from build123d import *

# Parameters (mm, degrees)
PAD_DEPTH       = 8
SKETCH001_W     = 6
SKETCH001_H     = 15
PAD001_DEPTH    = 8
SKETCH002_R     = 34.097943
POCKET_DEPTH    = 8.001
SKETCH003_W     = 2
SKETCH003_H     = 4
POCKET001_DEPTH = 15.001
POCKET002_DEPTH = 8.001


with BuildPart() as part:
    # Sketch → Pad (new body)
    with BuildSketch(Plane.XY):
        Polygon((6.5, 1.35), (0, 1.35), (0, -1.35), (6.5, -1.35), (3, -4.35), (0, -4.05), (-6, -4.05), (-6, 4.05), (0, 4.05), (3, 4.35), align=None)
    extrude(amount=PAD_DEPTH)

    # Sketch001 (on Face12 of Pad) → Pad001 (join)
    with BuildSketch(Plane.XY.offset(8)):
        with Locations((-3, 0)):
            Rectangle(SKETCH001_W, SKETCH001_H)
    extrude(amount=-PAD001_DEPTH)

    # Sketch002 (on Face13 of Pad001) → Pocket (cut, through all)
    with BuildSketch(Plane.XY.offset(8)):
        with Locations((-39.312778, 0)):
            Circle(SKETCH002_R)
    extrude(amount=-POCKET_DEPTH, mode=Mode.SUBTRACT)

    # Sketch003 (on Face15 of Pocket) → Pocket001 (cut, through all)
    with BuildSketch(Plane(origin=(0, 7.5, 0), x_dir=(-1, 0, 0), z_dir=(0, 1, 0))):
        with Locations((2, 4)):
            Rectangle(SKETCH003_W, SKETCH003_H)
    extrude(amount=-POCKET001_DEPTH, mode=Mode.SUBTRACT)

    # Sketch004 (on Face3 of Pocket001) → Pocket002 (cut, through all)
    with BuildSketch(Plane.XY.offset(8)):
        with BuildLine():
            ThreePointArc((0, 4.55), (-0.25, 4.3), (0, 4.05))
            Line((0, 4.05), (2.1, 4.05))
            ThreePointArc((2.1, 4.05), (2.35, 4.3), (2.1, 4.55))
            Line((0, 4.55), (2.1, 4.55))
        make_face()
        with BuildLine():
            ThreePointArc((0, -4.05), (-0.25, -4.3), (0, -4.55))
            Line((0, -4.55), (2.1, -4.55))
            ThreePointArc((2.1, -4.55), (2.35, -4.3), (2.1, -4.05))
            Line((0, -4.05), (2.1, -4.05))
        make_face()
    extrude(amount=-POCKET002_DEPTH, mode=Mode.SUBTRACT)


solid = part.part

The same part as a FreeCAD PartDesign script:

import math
import FreeCAD as App
import Part
import Sketcher
from FreeCAD import Vector

doc = App.newDocument("Part")
body = doc.addObject("PartDesign::Body", "Body")

# Sketch on XY plane
sketch1 = doc.addObject("Sketcher::SketchObject", "Sketch")
body.addObject(sketch1)
sketch1.AttachmentSupport = (doc.XY_Plane, [""])
sketch1.MapMode = "FlatFace"
sketch1.addGeometry(Part.LineSegment(Vector(0, 1.35, 0), Vector(6.5, 1.35, 0)), False)
sketch1.addGeometry(Part.LineSegment(Vector(6.5, 1.35, 0), Vector(3, 4.35, 0)), False)
sketch1.addGeometry(Part.LineSegment(Vector(3, 4.35, 0), Vector(0, 4.05, 0)), False)
sketch1.addGeometry(Part.LineSegment(Vector(0, 4.05, 0), Vector(-6, 4.05, 0)), False)
sketch1.addGeometry(Part.LineSegment(Vector(-6, 4.05, 0), Vector(-6, -4.05, 0)), False)
sketch1.addGeometry(Part.LineSegment(Vector(-6, -4.05, 0), Vector(0, -4.05, 0)), False)
sketch1.addGeometry(Part.LineSegment(Vector(0, -4.05, 0), Vector(3, -4.35, 0)), False)
sketch1.addGeometry(Part.LineSegment(Vector(3, -4.35, 0), Vector(6.5, -1.35, 0)), False)
sketch1.addGeometry(Part.LineSegment(Vector(6.5, -1.35, 0), Vector(0, -1.35, 0)), False)
sketch1.addGeometry(Part.LineSegment(Vector(0, -1.35, 0), Vector(0, 1.35, 0)), False)
sketch1.addConstraint(Sketcher.Constraint("Coincident", 0, 2, 1, 1))
sketch1.addConstraint(Sketcher.Constraint("Coincident", 1, 2, 2, 1))
sketch1.addConstraint(Sketcher.Constraint("Coincident", 2, 2, 3, 1))
sketch1.addConstraint(Sketcher.Constraint("Coincident", 3, 2, 4, 1))
sketch1.addConstraint(Sketcher.Constraint("Coincident", 4, 2, 5, 1))
sketch1.addConstraint(Sketcher.Constraint("Coincident", 5, 2, 6, 1))
sketch1.addConstraint(Sketcher.Constraint("Coincident", 6, 2, 7, 1))
sketch1.addConstraint(Sketcher.Constraint("Coincident", 7, 2, 8, 1))
sketch1.addConstraint(Sketcher.Constraint("Coincident", 8, 2, 9, 1))
sketch1.addConstraint(Sketcher.Constraint("Coincident", 9, 2, 0, 1))
sketch1.addConstraint(Sketcher.Constraint("Horizontal", 0))
sketch1.addConstraint(Sketcher.Constraint("Horizontal", 3))
sketch1.addConstraint(Sketcher.Constraint("Vertical", 4))
sketch1.addConstraint(Sketcher.Constraint("Horizontal", 5))
sketch1.addConstraint(Sketcher.Constraint("Horizontal", 8))
sketch1.addConstraint(Sketcher.Constraint("Vertical", 9))
sketch1.addConstraint(Sketcher.Constraint("Symmetric", 2, 2, 5, 2, -1, 1))
sketch1.addConstraint(Sketcher.Constraint("Symmetric", 8, 2, 9, 2, -1, 1))
sketch1.addConstraint(Sketcher.Constraint("Symmetric", 1, 2, 6, 2, -1))
sketch1.addConstraint(Sketcher.Constraint("PointOnObject", 2, 2, -2))
sketch1.addConstraint(Sketcher.Constraint("Vertical", 0, 2, 7, 2))
sketch1.addConstraint(Sketcher.Constraint("DistanceX", 3, 2, 3, 1, 6.0))
sketch1.addConstraint(Sketcher.Constraint("DistanceX", 0, 1, 0, 2, 6.5))
sketch1.addConstraint(Sketcher.Constraint("DistanceY", 4, 2, 4, 1, 8.1))
sketch1.addConstraint(Sketcher.Constraint("DistanceY", 9, 1, 9, 2, 2.7))
sketch1.addConstraint(Sketcher.Constraint("DistanceX", -1, 1, 1, 2, 3.0))
sketch1.addConstraint(Sketcher.Constraint("DistanceY", 0, 2, 1, 2, 3.0))
pad1 = doc.addObject("PartDesign::Pad", "Pad")
body.addObject(pad1)
pad1.Profile = sketch1
pad1.Length = 8

# Sketch on XY plane
sketch2 = doc.addObject("Sketcher::SketchObject", "Sketch001")
body.addObject(sketch2)
sketch2.AttachmentSupport = (doc.XY_Plane, [""])
sketch2.MapMode = "FlatFace"
sketch2.AttachmentOffset = App.Placement(Vector(0, 0, 8), App.Rotation())
sketch2.addGeometry(Part.LineSegment(Vector(-6, 7.5, 0), Vector(-6, -7.5, 0)), False)
sketch2.addGeometry(Part.LineSegment(Vector(-6, -7.5, 0), Vector(0, -7.5, 0)), False)
sketch2.addGeometry(Part.LineSegment(Vector(0, -7.5, 0), Vector(0, 7.5, 0)), False)
sketch2.addGeometry(Part.LineSegment(Vector(0, 7.5, 0), Vector(-6, 7.5, 0)), False)
sketch2.addConstraint(Sketcher.Constraint("Coincident", 0, 2, 1, 1))
sketch2.addConstraint(Sketcher.Constraint("Coincident", 1, 2, 2, 1))
sketch2.addConstraint(Sketcher.Constraint("Coincident", 2, 2, 3, 1))
sketch2.addConstraint(Sketcher.Constraint("Coincident", 3, 2, 0, 1))
sketch2.addConstraint(Sketcher.Constraint("Vertical", 0))
sketch2.addConstraint(Sketcher.Constraint("Horizontal", 1))
sketch2.addConstraint(Sketcher.Constraint("Vertical", 2))
sketch2.addConstraint(Sketcher.Constraint("Horizontal", 3))
sketch2.addConstraint(Sketcher.Constraint("Symmetric", 1, 2, 2, 2, -1, 1))
sketch2.addConstraint(Sketcher.Constraint("DistanceX", 1, 1, 1, 2, 6.0))
sketch2.addConstraint(Sketcher.Constraint("DistanceY", 0, 2, 0, 1, 15.0))
pad2 = doc.addObject("PartDesign::Pad", "Pad001")
body.addObject(pad2)
pad2.Profile = sketch2
pad2.Length = 8
pad2.Reversed = True

# Sketch on XY plane
sketch3 = doc.addObject("Sketcher::SketchObject", "Sketch002")
body.addObject(sketch3)
sketch3.AttachmentSupport = (doc.XY_Plane, [""])
sketch3.MapMode = "FlatFace"
sketch3.AttachmentOffset = App.Placement(Vector(0, 0, 8), App.Rotation())
sketch3.addGeometry(Part.Circle(Vector(-39.312778, 0, 0), Vector(0, 0, 1), 34.097943), False)
sketch3.addConstraint(Sketcher.Constraint("PointOnObject", 0, 3, -1))
sketch3.addConstraint(Sketcher.Constraint("Diameter", 0, 68.195886))
sketch3.addConstraint(Sketcher.Constraint("DistanceX", 0, 3, -1, 1, 39.312778))
pocket1 = doc.addObject("PartDesign::Pocket", "Pocket")
body.addObject(pocket1)
pocket1.Profile = sketch3
pocket1.Type = "ThroughAll"

# Sketch on XZ plane
sketch4 = doc.addObject("Sketcher::SketchObject", "Sketch003")
body.addObject(sketch4)
sketch4.AttachmentSupport = (doc.XZ_Plane, [""])
sketch4.MapMode = "FlatFace"
sketch4.AttachmentOffset = App.Placement(Vector(0, 0, -7.5), App.Rotation())
sketch4.addGeometry(Part.LineSegment(Vector(-1, 6, 0), Vector(-1, 2, 0)), False)
sketch4.addGeometry(Part.LineSegment(Vector(-1, 2, 0), Vector(-3, 2, 0)), False)
sketch4.addGeometry(Part.LineSegment(Vector(-3, 2, 0), Vector(-3, 6, 0)), False)
sketch4.addGeometry(Part.LineSegment(Vector(-3, 6, 0), Vector(-1, 6, 0)), False)
sketch4.addConstraint(Sketcher.Constraint("Coincident", 0, 2, 1, 1))
sketch4.addConstraint(Sketcher.Constraint("Coincident", 1, 2, 2, 1))
sketch4.addConstraint(Sketcher.Constraint("Coincident", 2, 2, 3, 1))
sketch4.addConstraint(Sketcher.Constraint("Coincident", 3, 2, 0, 1))
sketch4.addConstraint(Sketcher.Constraint("Vertical", 0))
sketch4.addConstraint(Sketcher.Constraint("Horizontal", 1))
sketch4.addConstraint(Sketcher.Constraint("Vertical", 2))
sketch4.addConstraint(Sketcher.Constraint("Horizontal", 3))
sketch4.addConstraint(Sketcher.Constraint("DistanceX", 1, 2, 1, 1, 2.0))
sketch4.addConstraint(Sketcher.Constraint("DistanceY", 0, 2, 0, 1, 4.0))
sketch4.addConstraint(Sketcher.Constraint("DistanceX", 0, 2, -1, 1, 1.0))
sketch4.addConstraint(Sketcher.Constraint("DistanceY", -1, 1, 0, 2, 2.0))
pocket2 = doc.addObject("PartDesign::Pocket", "Pocket001")
body.addObject(pocket2)
pocket2.Profile = sketch4
pocket2.Type = "ThroughAll"
pocket2.Reversed = True

# Sketch on XY plane
sketch5 = doc.addObject("Sketcher::SketchObject", "Sketch004")
body.addObject(sketch5)
sketch5.AttachmentSupport = (doc.XY_Plane, [""])
sketch5.MapMode = "FlatFace"
sketch5.AttachmentOffset = App.Placement(Vector(0, 0, 8), App.Rotation())
sketch5.addGeometry(Part.ArcOfCircle(Part.Circle(Vector(0, 4.3, 0), Vector(0, 0, 1), 0.25), math.radians(90), math.radians(270)), False)
sketch5.addGeometry(Part.LineSegment(Vector(0, 4.05, 0), Vector(2.1, 4.05, 0)), False)
sketch5.addGeometry(Part.ArcOfCircle(Part.Circle(Vector(2.1, 4.3, 0), Vector(0, 0, 1), 0.25), math.radians(-90), math.radians(90)), False)
sketch5.addGeometry(Part.LineSegment(Vector(2.1, 4.55, 0), Vector(0, 4.55, 0)), False)
sketch5.addGeometry(Part.ArcOfCircle(Part.Circle(Vector(0, -4.3, 0), Vector(0, 0, 1), 0.25), math.radians(90), math.radians(270)), False)
sketch5.addGeometry(Part.LineSegment(Vector(0, -4.55, 0), Vector(2.1, -4.55, 0)), False)
sketch5.addGeometry(Part.ArcOfCircle(Part.Circle(Vector(2.1, -4.3, 0), Vector(0, 0, 1), 0.25), math.radians(-90), math.radians(90)), False)
sketch5.addGeometry(Part.LineSegment(Vector(2.1, -4.05, 0), Vector(0, -4.05, 0)), False)
sketch5.addConstraint(Sketcher.Constraint("Tangent", 0, 2, 1, 1))
sketch5.addConstraint(Sketcher.Constraint("Tangent", 1, 2, 2, 1))
sketch5.addConstraint(Sketcher.Constraint("Tangent", 2, 2, 3, 1))
sketch5.addConstraint(Sketcher.Constraint("Tangent", 3, 2, 0, 1))
sketch5.addConstraint(Sketcher.Constraint("Tangent", 4, 2, 5, 1))
sketch5.addConstraint(Sketcher.Constraint("Tangent", 5, 2, 6, 1))
sketch5.addConstraint(Sketcher.Constraint("Tangent", 6, 2, 7, 1))
sketch5.addConstraint(Sketcher.Constraint("Tangent", 7, 2, 4, 1))
sketch5.addConstraint(Sketcher.Constraint("Horizontal", 1))
sketch5.addConstraint(Sketcher.Constraint("Horizontal", 3))
sketch5.addConstraint(Sketcher.Constraint("Horizontal", 5))
sketch5.addConstraint(Sketcher.Constraint("Horizontal", 7))
sketch5.addConstraint(Sketcher.Constraint("Equal", 2, 4))
sketch5.addConstraint(Sketcher.Constraint("Symmetric", 0, 3, 4, 3, -1, 1))
sketch5.addConstraint(Sketcher.Constraint("PointOnObject", 0, 3, -2))
sketch5.addConstraint(Sketcher.Constraint("Vertical", 2, 3, 6, 3))
sketch5.addConstraint(Sketcher.Constraint("Radius", 0, 0.25))
sketch5.addConstraint(Sketcher.Constraint("DistanceX", 1, 1, 1, 2, 2.1))
sketch5.addConstraint(Sketcher.Constraint("DistanceY", -1, 1, 0, 3, 4.3))
pocket3 = doc.addObject("PartDesign::Pocket", "Pocket002")
body.addObject(pocket3)
pocket3.Profile = sketch5
pocket3.Type = "ThroughAll"

doc.recompute()
